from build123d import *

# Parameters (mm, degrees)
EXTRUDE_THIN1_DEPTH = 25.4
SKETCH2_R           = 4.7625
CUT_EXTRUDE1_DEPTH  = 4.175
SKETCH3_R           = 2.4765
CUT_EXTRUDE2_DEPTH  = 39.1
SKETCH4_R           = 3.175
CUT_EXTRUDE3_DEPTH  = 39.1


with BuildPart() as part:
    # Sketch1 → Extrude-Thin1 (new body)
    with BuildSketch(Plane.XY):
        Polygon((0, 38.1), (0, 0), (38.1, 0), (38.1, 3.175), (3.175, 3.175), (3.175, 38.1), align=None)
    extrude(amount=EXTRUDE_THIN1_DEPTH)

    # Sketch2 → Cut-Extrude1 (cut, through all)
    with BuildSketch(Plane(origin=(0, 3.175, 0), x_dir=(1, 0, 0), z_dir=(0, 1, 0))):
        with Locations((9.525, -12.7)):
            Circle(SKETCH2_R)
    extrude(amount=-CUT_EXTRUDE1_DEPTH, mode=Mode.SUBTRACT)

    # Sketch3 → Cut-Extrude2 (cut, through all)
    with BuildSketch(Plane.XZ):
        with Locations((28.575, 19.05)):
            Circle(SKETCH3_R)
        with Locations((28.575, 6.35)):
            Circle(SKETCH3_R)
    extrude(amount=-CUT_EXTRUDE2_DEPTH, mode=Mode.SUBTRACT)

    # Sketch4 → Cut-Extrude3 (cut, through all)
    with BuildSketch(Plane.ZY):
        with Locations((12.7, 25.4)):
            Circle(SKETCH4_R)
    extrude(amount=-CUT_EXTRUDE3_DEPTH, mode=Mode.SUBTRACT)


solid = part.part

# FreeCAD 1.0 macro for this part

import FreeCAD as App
import Part
import Sketcher
from FreeCAD import Vector
Q = App.Units.Quantity


def add_polygon(sketch, points):
    """Adds a closed chain of lines whose ends are joined by coincident constraints."""
    first, n = sketch.GeometryCount, len(points)
    for a, b in zip(points, points[1:] + points[:1]):
        sketch.addGeometry(Part.LineSegment(App.Vector(*a, 0), App.Vector(*b, 0)), False)
    for i in range(n):
        sketch.addConstraint(Sketcher.Constraint("Coincident", first + i, 2, first + (i + 1) % n, 1))

doc = App.newDocument("Part")
body = doc.addObject("PartDesign::Body", "Body")

sketch1 = body.newObject("Sketcher::SketchObject", "Sketch")
sketch1.AttachmentSupport = (doc.getObject("XY_Plane"), [""])
sketch1.MapMode = "FlatFace"
add_polygon(sketch1, [(0, 38.1), (0, 0), (38.1, 0), (38.1, 3.2), (3.2, 3.2), (3.2, 38.1)])
sketch1.addConstraint([
    Sketcher.Constraint("Vertical", 0),
    Sketcher.Constraint("Horizontal", 1),
    Sketcher.Constraint("Vertical", 2),
    Sketcher.Constraint("Horizontal", 3),
    Sketcher.Constraint("Vertical", 4),
    Sketcher.Constraint("Horizontal", 5),
    Sketcher.Constraint("Coincident", 0, 2, -1, 1),
    Sketcher.Constraint("Equal", 1, 0),
    Sketcher.Constraint("Equal", 5, 2),
    Sketcher.Constraint("DistanceX", 1, 1, 1, 2, Q("1.5 in")),
    Sketcher.Constraint("DistanceX", 3, 2, 3, 1, Q("1.375 in")),
])
pad1 = body.newObject("PartDesign::Pad", "Pad")
pad1.Profile = sketch1
pad1.Length = Q("1 in")

sketch2 = body.newObject("Sketcher::SketchObject", "Sketch001")
sketch2.AttachmentSupport = (doc.getObject("XZ_Plane"), [""])
sketch2.MapMode = "FlatFace"
sketch2.AttachmentOffset = App.Placement(Vector(0, 0, -0.125 * 25.4), App.Rotation())
sketch2.addGeometry(Part.Circle(Vector(9.5, 12.7, 0), Vector(0, 0, 1), 4.8), False)
sketch2.addConstraint([
    Sketcher.Constraint("Diameter", 0, Q("0.375 in")),
    Sketcher.Constraint("DistanceY", -1, 1, 0, 3, Q("0.5 in")),
    Sketcher.Constraint("DistanceX", -1, 1, 0, 3, Q("0.375 in")),
])
pocket1 = body.newObject("PartDesign::Pocket", "Pocket")
pocket1.Profile = sketch2
pocket1.Type = "ThroughAll"
pocket1.Reversed = True

sketch3 = body.newObject("Sketcher::SketchObject", "Sketch002")
sketch3.AttachmentSupport = (doc.getObject("XZ_Plane"), [""])
sketch3.MapMode = "FlatFace"
sketch3.addGeometry([
    Part.Circle(Vector(28.6, 19.1, 0), Vector(0, 0, 1), 2.5),
    Part.Circle(Vector(28.6, 6.3, 0), Vector(0, 0, 1), 2.5),
], False)
sketch3.addConstraint([
    Sketcher.Constraint("Equal", 0, 1),
    Sketcher.Constraint("Vertical", 0, 3, 1, 3),
    Sketcher.Constraint("Diameter", 0, Q("0.195 in")),
    Sketcher.Constraint("DistanceY", 1, 3, 0, 3, Q("0.5 in")),
    Sketcher.Constraint("DistanceY", -1, 1, 0, 3, Q("0.75 in")),
    Sketcher.Constraint("DistanceX", -1, 1, 0, 3, Q("1.125 in")),
])
pocket2 = body.newObject("PartDesign::Pocket", "Pocket001")
pocket2.Profile = sketch3
pocket2.Type = "ThroughAll"

sketch4 = body.newObject("Sketcher::SketchObject", "Sketch003")
sketch4.AttachmentSupport = (doc.getObject("YZ_Plane"), [""])
sketch4.MapMode = "FlatFace"
sketch4.addGeometry(Part.Circle(Vector(25.4, 12.7, 0), Vector(0, 0, 1), 3.2), False)
sketch4.addConstraint([
    Sketcher.Constraint("Diameter", 0, Q("0.25 in")),
    Sketcher.Constraint("DistanceX", -1, 1, 0, 3, Q("1 in")),
    Sketcher.Constraint("DistanceY", -1, 1, 0, 3, Q("0.5 in")),
])
pocket3 = body.newObject("PartDesign::Pocket", "Pocket002")
pocket3.Profile = sketch4
pocket3.Type = "ThroughAll"
pocket3.Reversed = True

doc.recompute()
